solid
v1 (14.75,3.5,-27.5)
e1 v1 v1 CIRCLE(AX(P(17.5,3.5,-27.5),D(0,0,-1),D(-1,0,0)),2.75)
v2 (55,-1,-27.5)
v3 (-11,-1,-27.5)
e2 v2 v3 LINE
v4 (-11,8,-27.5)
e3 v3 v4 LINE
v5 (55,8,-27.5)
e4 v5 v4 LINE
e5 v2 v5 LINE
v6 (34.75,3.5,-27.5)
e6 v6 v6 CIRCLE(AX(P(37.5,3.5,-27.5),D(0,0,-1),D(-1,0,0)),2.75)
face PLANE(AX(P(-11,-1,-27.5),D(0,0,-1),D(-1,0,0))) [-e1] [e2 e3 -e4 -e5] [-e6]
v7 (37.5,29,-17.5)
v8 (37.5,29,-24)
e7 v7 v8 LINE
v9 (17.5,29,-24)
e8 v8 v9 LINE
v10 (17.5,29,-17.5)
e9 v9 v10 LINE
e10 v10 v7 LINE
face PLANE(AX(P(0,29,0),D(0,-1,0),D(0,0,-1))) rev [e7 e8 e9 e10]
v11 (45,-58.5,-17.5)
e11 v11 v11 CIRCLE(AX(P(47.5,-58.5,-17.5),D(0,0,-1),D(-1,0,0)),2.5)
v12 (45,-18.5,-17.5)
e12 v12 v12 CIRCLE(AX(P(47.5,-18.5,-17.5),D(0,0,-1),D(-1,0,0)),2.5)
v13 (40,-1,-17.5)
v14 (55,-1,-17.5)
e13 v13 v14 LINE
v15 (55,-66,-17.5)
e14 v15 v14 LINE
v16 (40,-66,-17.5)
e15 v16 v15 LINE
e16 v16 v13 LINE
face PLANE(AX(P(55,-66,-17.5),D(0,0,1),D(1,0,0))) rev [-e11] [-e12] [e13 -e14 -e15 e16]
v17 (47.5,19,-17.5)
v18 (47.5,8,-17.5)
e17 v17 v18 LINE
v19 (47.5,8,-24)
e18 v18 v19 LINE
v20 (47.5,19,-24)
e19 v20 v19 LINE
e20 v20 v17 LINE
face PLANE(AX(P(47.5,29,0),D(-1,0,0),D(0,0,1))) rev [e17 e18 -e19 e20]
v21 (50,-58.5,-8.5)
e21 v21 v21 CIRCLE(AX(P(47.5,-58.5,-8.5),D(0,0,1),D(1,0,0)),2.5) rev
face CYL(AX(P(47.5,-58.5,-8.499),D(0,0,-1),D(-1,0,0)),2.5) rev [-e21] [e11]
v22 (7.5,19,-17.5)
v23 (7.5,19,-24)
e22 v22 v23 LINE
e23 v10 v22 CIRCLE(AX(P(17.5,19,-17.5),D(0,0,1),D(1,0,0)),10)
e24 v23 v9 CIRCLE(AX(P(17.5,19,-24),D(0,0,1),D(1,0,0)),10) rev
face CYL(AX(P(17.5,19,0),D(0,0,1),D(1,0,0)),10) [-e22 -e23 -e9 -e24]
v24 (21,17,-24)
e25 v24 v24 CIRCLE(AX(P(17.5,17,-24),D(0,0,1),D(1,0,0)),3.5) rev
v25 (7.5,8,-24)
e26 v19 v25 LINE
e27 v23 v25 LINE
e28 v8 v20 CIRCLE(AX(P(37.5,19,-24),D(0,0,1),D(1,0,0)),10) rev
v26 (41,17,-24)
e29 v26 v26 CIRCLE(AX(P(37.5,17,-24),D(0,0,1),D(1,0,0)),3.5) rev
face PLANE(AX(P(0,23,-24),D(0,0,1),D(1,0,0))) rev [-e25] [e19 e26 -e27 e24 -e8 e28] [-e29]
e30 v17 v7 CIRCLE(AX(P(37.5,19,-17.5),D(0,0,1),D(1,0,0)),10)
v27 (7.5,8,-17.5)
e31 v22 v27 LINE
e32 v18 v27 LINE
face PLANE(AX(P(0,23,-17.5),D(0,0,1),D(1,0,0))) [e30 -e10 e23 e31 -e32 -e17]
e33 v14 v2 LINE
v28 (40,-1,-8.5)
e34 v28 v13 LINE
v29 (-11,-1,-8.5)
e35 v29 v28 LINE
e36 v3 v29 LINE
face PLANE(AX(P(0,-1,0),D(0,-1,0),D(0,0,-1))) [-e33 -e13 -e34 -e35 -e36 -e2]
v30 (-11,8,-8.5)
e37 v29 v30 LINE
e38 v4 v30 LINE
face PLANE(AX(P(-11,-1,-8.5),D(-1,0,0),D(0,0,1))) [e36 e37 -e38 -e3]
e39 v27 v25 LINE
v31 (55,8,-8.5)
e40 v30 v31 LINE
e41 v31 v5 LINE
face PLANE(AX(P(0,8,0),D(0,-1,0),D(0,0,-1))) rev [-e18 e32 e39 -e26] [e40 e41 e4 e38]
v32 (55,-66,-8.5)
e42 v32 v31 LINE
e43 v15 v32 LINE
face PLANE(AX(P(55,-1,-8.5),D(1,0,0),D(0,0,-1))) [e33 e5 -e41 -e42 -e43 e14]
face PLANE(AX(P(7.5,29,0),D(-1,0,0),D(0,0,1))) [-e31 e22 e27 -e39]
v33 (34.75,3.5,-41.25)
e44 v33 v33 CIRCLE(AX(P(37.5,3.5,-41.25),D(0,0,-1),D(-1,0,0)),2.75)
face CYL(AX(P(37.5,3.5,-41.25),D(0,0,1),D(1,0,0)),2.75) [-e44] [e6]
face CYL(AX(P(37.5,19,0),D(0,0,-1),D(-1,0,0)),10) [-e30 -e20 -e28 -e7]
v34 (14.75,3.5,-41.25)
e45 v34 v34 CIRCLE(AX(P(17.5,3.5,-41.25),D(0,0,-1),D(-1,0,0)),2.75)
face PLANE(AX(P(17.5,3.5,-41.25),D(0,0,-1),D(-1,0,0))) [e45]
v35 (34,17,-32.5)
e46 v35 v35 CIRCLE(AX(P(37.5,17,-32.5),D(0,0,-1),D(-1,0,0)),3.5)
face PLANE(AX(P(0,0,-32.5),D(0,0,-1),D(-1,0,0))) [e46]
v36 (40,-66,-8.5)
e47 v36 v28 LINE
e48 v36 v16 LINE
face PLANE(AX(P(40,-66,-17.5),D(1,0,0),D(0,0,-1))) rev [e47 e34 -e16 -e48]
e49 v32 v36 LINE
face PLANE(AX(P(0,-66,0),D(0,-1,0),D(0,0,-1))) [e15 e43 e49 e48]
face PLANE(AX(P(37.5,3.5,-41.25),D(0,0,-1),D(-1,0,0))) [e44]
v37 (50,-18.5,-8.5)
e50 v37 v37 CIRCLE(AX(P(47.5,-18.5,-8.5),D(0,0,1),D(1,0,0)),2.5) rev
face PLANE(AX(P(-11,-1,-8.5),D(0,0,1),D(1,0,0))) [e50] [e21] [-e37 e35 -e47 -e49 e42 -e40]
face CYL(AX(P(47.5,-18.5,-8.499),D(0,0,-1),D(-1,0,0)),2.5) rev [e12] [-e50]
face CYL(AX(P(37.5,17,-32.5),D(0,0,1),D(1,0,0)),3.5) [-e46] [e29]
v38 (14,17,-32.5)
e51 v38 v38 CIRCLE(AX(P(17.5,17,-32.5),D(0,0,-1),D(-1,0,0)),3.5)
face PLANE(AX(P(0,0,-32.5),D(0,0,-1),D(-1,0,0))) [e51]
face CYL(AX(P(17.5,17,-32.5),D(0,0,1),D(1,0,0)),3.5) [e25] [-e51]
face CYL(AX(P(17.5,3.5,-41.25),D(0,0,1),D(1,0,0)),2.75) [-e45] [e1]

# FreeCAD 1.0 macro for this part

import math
import FreeCAD as App
import Part
import Sketcher
from FreeCAD import Vector


def edges_at(feature, points):
    """Names of the edges that pass closest to the given points."""
    edges = feature.Shape.Edges
    near = lambda p: min(range(len(edges)), key=lambda i: edges[i].distToShape(Part.Vertex(*p))[0])
    return sorted({f"Edge{near(p) + 1}" for p in points})

doc = App.newDocument("Part")
body = doc.addObject("PartDesign::Body", "Body")

sketch1 = body.newObject("Sketcher::SketchObject", "Sketch")
sketch1.AttachmentSupport = (doc.getObject("XZ_Plane"), [""])
sketch1.MapMode = "FlatFace"
sketch1.addGeometry([
    Part.LineSegment(Vector(-11, -28, 0), Vector(-11, -8, 0)),
    Part.LineSegment(Vector(-11, -8, 0), Vector(55, -8, 0)),
    Part.LineSegment(Vector(55, -8, 0), Vector(55, -28, 0)),
    Part.LineSegment(Vector(55, -28, 0), Vector(-11, -28, 0)),
], False)
sketch1.addConstraint([
    Sketcher.Constraint("Coincident", 0, 2, 1, 1),
    Sketcher.Constraint("Coincident", 1, 2, 2, 1),
    Sketcher.Constraint("Coincident", 2, 2, 3, 1),
    Sketcher.Constraint("Coincident", 3, 2, 0, 1),
    Sketcher.Constraint("Vertical", 0),
    Sketcher.Constraint("Horizontal", 1),
    Sketcher.Constraint("Vertical", 2),
    Sketcher.Constraint("Horizontal", 3),
    Sketcher.Constraint("DistanceX", 1, 1, 1, 2, 66.0),
    Sketcher.Constraint("DistanceY", 0, 1, 0, 2, 19.0),
    Sketcher.Constraint("DistanceX", 0, 2, -1, 1, 11.0),
    Sketcher.Constraint("DistanceY", 0, 2, -1, 1, 8.5),
])
pad1 = body.newObject("PartDesign::Pad", "Pad")
pad1.Profile = sketch1
pad1.Type = "TwoLengths"
pad1.Length = 8
pad1.Length2 = 1
pad1.Reversed = True

sketch2 = body.newObject("Sketcher::SketchObject", "Sketch001")
sketch2.AttachmentSupport = (doc.getObject("XY_Plane"), [""])
sketch2.MapMode = "FlatFace"
sketch2.AttachmentOffset = App.Placement(Vector(0, 0, -27.5), App.Rotation())
sketch2.addGeometry([
    Part.Circle(Vector(37.5, 3.5, 0), Vector(0, 0, 1), 2.8),
    Part.Circle(Vector(17.5, 3.5, 0), Vector(0, 0, 1), 2.8),
], False)
sketch2.addConstraint([
    Sketcher.Constraint("Equal", 0, 1),
    Sketcher.Constraint("Horizontal", 0, 3, 1, 3),
    Sketcher.Constraint("Diameter", 0, 5.5),
    Sketcher.Constraint("DistanceX", 1, 3, 0, 3, 20.0),
    Sketcher.Constraint("DistanceX", -1, 1, 0, 3, 37.5),
    Sketcher.Constraint("DistanceY", -1, 1, 0, 3, 3.5),
])
pad2 = body.newObject("PartDesign::Pad", "Pad001")
pad2.Profile = sketch2
pad2.Length = 13.75
pad2.Reversed = True

sketch3 = body.newObject("Sketcher::SketchObject", "Sketch002")
sketch3.AttachmentSupport = (doc.getObject("XZ_Plane"), [""])
sketch3.MapMode = "FlatFace"
sketch3.AttachmentOffset = App.Placement(Vector(0, 0, -8), App.Rotation())
sketch3.addGeometry([
    Part.LineSegment(Vector(23, -24, 0), Vector(23, -18, 0)),
    Part.LineSegment(Vector(23, -18, 0), Vector(32, -18, 0)),
    Part.LineSegment(Vector(32, -18, 0), Vector(32, -24, 0)),
    Part.LineSegment(Vector(32, -24, 0), Vector(23, -24, 0)),
], False)
sketch3.addConstraint([
    Sketcher.Constraint("Coincident", 0, 2, 1, 1),
    Sketcher.Constraint("Coincident", 1, 2, 2, 1),
    Sketcher.Constraint("Coincident", 2, 2, 3, 1),
    Sketcher.Constraint("Coincident", 3, 2, 0, 1),
    Sketcher.Constraint("Vertical", 0),
    Sketcher.Constraint("Horizontal", 1),
    Sketcher.Constraint("Vertical", 2),
    Sketcher.Constraint("Horizontal", 3),
    Sketcher.Constraint("DistanceX", 1, 1, 1, 2, 9.0),
    Sketcher.Constraint("DistanceY", 0, 1, 0, 2, 6.5),
    Sketcher.Constraint("DistanceX", -1, 1, 0, 2, 23.0),
    Sketcher.Constraint("DistanceY", 2, 2, -1, 1, 24.0),
])
pad3 = body.newObject("PartDesign::Pad", "Pad002")
pad3.Profile = sketch3
pad3.Length = 15
pad3.Reversed = True

sketch4 = body.newObject("Sketcher::SketchObject", "Sketch003")
sketch4.AttachmentSupport = (doc.getObject("XY_Plane"), [""])
sketch4.MapMode = "FlatFace"
sketch4.AttachmentOffset = App.Placement(Vector(0, 0, -24), App.Rotation())
sketch4.addGeometry([
    Part.ArcOfCircle(Part.Circle(Vector(27.5, 16, 0), Vector(0, 0, 1), 3.5), math.radians(-180), math.radians(-122)),
    Part.ArcOfCircle(Part.Circle(Vector(27.5, 16, 0), Vector(0, 0, 1), 3.5), math.radians(-90), math.radians(180)),
    Part.ArcOfCircle(Part.Circle(Vector(27.5, 16, 0), Vector(0, 0, 1), 3.5), math.radians(-117), math.radians(-90)),
    Part.ArcOfCircle(Part.Circle(Vector(25.77, 12.95, 0), Vector(0, 0, 1), 0.16), math.radians(-28), math.radians(149)),
], False)
sketch4.addConstraint([
    Sketcher.Constraint("Tangent", 0, 1, 1, 2),
    Sketcher.Constraint("Tangent", 1, 1, 2, 2),
    Sketcher.Constraint("Coincident", 2, 1, 3, 1),
    Sketcher.Constraint("Coincident", 3, 2, 0, 2),
    Sketcher.Constraint("Coincident", 2, 3, 0, 3),
    Sketcher.Constraint("Horizontal", 2, 3, 0, 1),
    Sketcher.Constraint("Vertical", 2, 3, 1, 1),
    Sketcher.Constraint("Radius", 0, 3.5),
    Sketcher.Constraint("DistanceY", -1, 1, 0, 3, 16.0),
    Sketcher.Constraint("DistanceX", -1, 1, 0, 1, 24.0),
    Sketcher.Constraint("Radius", 3, 0.161043),
    Sketcher.Constraint("DistanceY", -1, 1, 3, 3, 12.954799),
    Sketcher.Constraint("DistanceX", -1, 1, 2, 1, 25.916579),
])
pad4 = body.newObject("PartDesign::Pad", "Pad003")
pad4.Profile = sketch4
pad4.Length = 8.5
pad4.Reversed = True

sketch5 = body.newObject("Sketcher::SketchObject", "Sketch004")
sketch5.AttachmentSupport = (doc.getObject("XZ_Plane"), [""])
sketch5.MapMode = "FlatFace"
sketch5.AttachmentOffset = App.Placement(Vector(0, 0, -23), App.Rotation())
sketch5.addGeometry([
    Part.LineSegment(Vector(23, -24, 0), Vector(23, -18, 0)),
    Part.LineSegment(Vector(23, -18, 0), Vector(32, -18, 0)),
    Part.LineSegment(Vector(32, -18, 0), Vector(32, -24, 0)),
    Part.LineSegment(Vector(32, -24, 0), Vector(23, -24, 0)),
], False)
sketch5.addConstraint([
    Sketcher.Constraint("Coincident", 0, 2, 1, 1),
    Sketcher.Constraint("Coincident", 1, 2, 2, 1),
    Sketcher.Constraint("Coincident", 2, 2, 3, 1),
    Sketcher.Constraint("Coincident", 3, 2, 0, 1),
    Sketcher.Constraint("Vertical", 0),
    Sketcher.Constraint("Horizontal", 1),
    Sketcher.Constraint("Vertical", 2),
    Sketcher.Constraint("Horizontal", 3),
    Sketcher.Constraint("DistanceX", 1, 1, 1, 2, 9.0),
    Sketcher.Constraint("DistanceY", 0, 1, 0, 2, 6.5),
    Sketcher.Constraint("DistanceX", -1, 1, 0, 2, 23.0),
    Sketcher.Constraint("DistanceY", 2, 2, -1, 1, 24.0),
])
pad5 = body.newObject("PartDesign::Pad", "Pad004")
pad5.Profile = sketch5
pad5.Length = 6
pad5.Reversed = True

sketch6 = body.newObject("Sketcher::SketchObject", "Sketch005")
sketch6.AttachmentSupport = (doc.getObject("XZ_Plane"), [""])
sketch6.MapMode = "FlatFace"
sketch6.AttachmentOffset = App.Placement(Vector(0, 0, -8), App.Rotation())
sketch6.addGeometry([
    Part.LineSegment(Vector(8, -24, 0), Vector(8, -18, 0)),
    Part.LineSegment(Vector(8, -18, 0), Vector(23, -18, 0)),
    Part.LineSegment(Vector(23, -18, 0), Vector(23, -24, 0)),
    Part.LineSegment(Vector(23, -24, 0), Vector(8, -24, 0)),
    Part.LineSegment(Vector(32, -24, 0), Vector(32, -18, 0)),
    Part.LineSegment(Vector(32, -18, 0), Vector(48, -18, 0)),
    Part.LineSegment(Vector(48, -18, 0), Vector(48, -24, 0)),
    Part.LineSegment(Vector(48, -24, 0), Vector(32, -24, 0)),
], False)
sketch6.addConstraint([
    Sketcher.Constraint("Coincident", 0, 2, 1, 1),
    Sketcher.Constraint("Coincident", 1, 2, 2, 1),
    Sketcher.Constraint("Coincident", 2, 2, 3, 1),
    Sketcher.Constraint("Coincident", 3, 2, 0, 1),
    Sketcher.Constraint("Coincident", 4, 2, 5, 1),
    Sketcher.Constraint("Coincident", 5, 2, 6, 1),
    Sketcher.Constraint("Coincident", 6, 2, 7, 1),
    Sketcher.Constraint("Coincident", 7, 2, 4, 1),
    Sketcher.Constraint("Vertical", 0),
    Sketcher.Constraint("Horizontal", 1),
    Sketcher.Constraint("Vertical", 2),
    Sketcher.Constraint("Horizontal", 3),
    Sketcher.Constraint("Vertical", 4),
    Sketcher.Constraint("Horizontal", 5),
    Sketcher.Constraint("Vertical", 6),
    Sketcher.Constraint("Horizontal", 7),
    Sketcher.Constraint("Horizontal", 1, 2, 4, 2),
    Sketcher.Constraint("Horizontal", 3, 2, 6, 2),
    Sketcher.Constraint("Equal", 3, 5),
    Sketcher.Constraint("DistanceX", 1, 1, 1, 2, 15.5),
    Sketcher.Constraint("DistanceY", 0, 1, 0, 2, 6.5),
    Sketcher.Constraint("DistanceX", -1, 1, 1, 2, 23.0),
    Sketcher.Constraint("DistanceY", 2, 2, -1, 1, 24.0),
    Sketcher.Constraint("DistanceX", -1, 1, 4, 2, 32.0),
])
pad6 = body.newObject("PartDesign::Pad", "Pad005")
pad6.Profile = sketch6
pad6.Length = 21
pad6.Reversed = True

sketch7 = body.newObject("Sketcher::SketchObject", "Sketch006")
sketch7.AttachmentSupport = (doc.getObject("XY_Plane"), [""])
sketch7.MapMode = "FlatFace"
sketch7.AttachmentOffset = App.Placement(Vector(0, 0, -24), App.Rotation())
sketch7.addGeometry([
    Part.ArcOfCircle(Part.Circle(Vector(17.5, 17, 0), Vector(0, 0, 1), 3.5), math.radians(0), math.radians(180)),
    Part.ArcOfCircle(Part.Circle(Vector(17.5, 17, 0), Vector(0, 0, 1), 3.5), math.radians(-90), math.radians(0)),
    Part.ArcOfCircle(Part.Circle(Vector(17.5, 17, 0), Vector(0, 0, 1), 3.5), math.radians(-180), math.radians(-90)),
    Part.ArcOfCircle(Part.Circle(Vector(37.5, 17, 0), Vector(0, 0, 1), 3.5), math.radians(-90), math.radians(0)),
    Part.ArcOfCircle(Part.Circle(Vector(37.5, 17, 0), Vector(0, 0, 1), 3.5), math.radians(-180), math.radians(-90)),
    Part.ArcOfCircle(Part.Circle(Vector(37.5, 17, 0), Vector(0, 0, 1), 3.5), math.radians(0), math.radians(180)),
], False)
sketch7.addConstraint([
    Sketcher.Constraint("Tangent", 0, 1, 1, 2),
    Sketcher.Constraint("Tangent", 1, 1, 2, 2),
    Sketcher.Constraint("Tangent", 2, 1, 0, 2),
    Sketcher.Constraint("Tangent", 3, 1, 4, 2),
    Sketcher.Constraint("Tangent", 4, 1, 5, 2),
    Sketcher.Constraint("Tangent", 5, 1, 3, 2),
    Sketcher.Constraint("Equal", 2, 3),
    Sketcher.Constraint("Horizontal", 2, 3, 3, 3),
    Sketcher.Constraint("Horizontal", 5, 3, 0, 1),
    Sketcher.Constraint("Horizontal", 0, 1, 2, 1),
    Sketcher.Constraint("Horizontal", 2, 1, 4, 1),
    Sketcher.Constraint("Horizontal", 4, 1, 5, 1),
    Sketcher.Constraint("Vertical", 2, 3, 1, 1),
    Sketcher.Constraint("Vertical", 5, 3, 3, 1),
    Sketcher.Constraint("Radius", 0, 3.5),
    Sketcher.Constraint("DistanceY", -1, 1, 0, 3, 17.0),
    Sketcher.Constraint("DistanceX", -1, 1, 0, 1, 21.0),
    Sketcher.Constraint("DistanceX", -1, 1, 4, 1, 34.0),
])
pad7 = body.newObject("PartDesign::Pad", "Pad006")
pad7.Profile = sketch7
pad7.Length = 8.5
pad7.Reversed = True

sketch8 = body.newObject("Sketcher::SketchObject", "Sketch007")
sketch8.AttachmentSupport = (doc.getObject("XY_Plane"), [""])
sketch8.MapMode = "FlatFace"
sketch8.AttachmentOffset = App.Placement(Vector(0, 0, -24), App.Rotation())
sketch8.addGeometry(Part.Circle(Vector(27.5, 16, 0), Vector(0, 0, 1), 3.5), False)
sketch8.addConstraint([
    Sketcher.Constraint("Diameter", 0, 7.0),
    Sketcher.Constraint("DistanceY", -1, 1, 0, 3, 16.0),
    Sketcher.Constraint("DistanceX", -1, 1, 0, 3, 27.5),
])
pocket1 = body.newObject("PartDesign::Pocket", "Pocket")
pocket1.Profile = sketch8
pocket1.Length = 8.5
doc.recompute()

fillet = body.newObject("PartDesign::Fillet", "Fillet")
fillet.Base = (pocket1, edges_at(pocket1, [(7.5, 29, -20.75), (47.5, 29, -20.75)]))
fillet.Radius = 10

sketch9 = body.newObject("Sketcher::SketchObject", "Sketch008")
sketch9.AttachmentSupport = (doc.getObject("XZ_Plane"), [""])
sketch9.MapMode = "FlatFace"
sketch9.AttachmentOffset = App.Placement(Vector(0, 0, 1), App.Rotation())
sketch9.addGeometry([
    Part.LineSegment(Vector(40, -8, 0), Vector(40, -18, 0)),
    Part.LineSegment(Vector(40, -18, 0), Vector(55, -18, 0)),
    Part.LineSegment(Vector(55, -18, 0), Vector(55, -8, 0)),
    Part.LineSegment(Vector(55, -8, 0), Vector(40, -8, 0)),
], False)
sketch9.addConstraint([
    Sketcher.Constraint("Coincident", 0, 2, 1, 1),
    Sketcher.Constraint("Coincident", 1, 2, 2, 1),
    Sketcher.Constraint("Coincident", 2, 2, 3, 1),
    Sketcher.Constraint("Coincident", 3, 2, 0, 1),
    Sketcher.Constraint("Vertical", 0),
    Sketcher.Constraint("Horizontal", 1),
    Sketcher.Constraint("Vertical", 2),
    Sketcher.Constraint("Horizontal", 3),
    Sketcher.Constraint("DistanceX", 1, 1, 1, 2, 15.0),
    Sketcher.Constraint("DistanceY", 0, 2, 0, 1, 9.0),
    Sketcher.Constraint("DistanceX", -1, 1, 0, 2, 40.0),
    Sketcher.Constraint("DistanceY", 0, 2, -1, 1, 17.5),
])
pad8 = body.newObject("PartDesign::Pad", "Pad007")
pad8.Profile = sketch9
pad8.Length = 65

sketch10 = body.newObject("Sketcher::SketchObject", "Sketch009")
sketch10.AttachmentSupport = (doc.getObject("XY_Plane"), [""])
sketch10.MapMode = "FlatFace"
sketch10.AttachmentOffset = App.Placement(Vector(0, 0, -17.5), App.Rotation())
sketch10.addGeometry(Part.Circle(Vector(47.5, -58.5, 0), Vector(0, 0, 1), 2.5), False)
sketch10.addConstraint([
    Sketcher.Constraint("Diameter", 0, 5.0),
    Sketcher.Constraint("DistanceX", -1, 1, 0, 3, 47.5),
    Sketcher.Constraint("DistanceY", 0, 3, -1, 1, 58.5),
])
pocket2 = body.newObject("PartDesign::Pocket", "Pocket001")
pocket2.Profile = sketch10
pocket2.Type = "UpToFirst"
pocket2.Reversed = True

sketch11 = body.newObject("Sketcher::SketchObject", "Sketch010")
sketch11.AttachmentSupport = (doc.getObject("XY_Plane"), [""])
sketch11.MapMode = "FlatFace"
sketch11.AttachmentOffset = App.Placement(Vector(0, 0, -17.5), App.Rotation())
sketch11.addGeometry(Part.Circle(Vector(47.5, -18.5, 0), Vector(0, 0, 1), 2.5), False)
sketch11.addConstraint([
    Sketcher.Constraint("Diameter", 0, 5.0),
    Sketcher.Constraint("DistanceX", -1, 1, 0, 3, 47.5),
    Sketcher.Constraint("DistanceY", 0, 3, -1, 1, 18.5),
])
pocket3 = body.newObject("PartDesign::Pocket", "Pocket002")
pocket3.Profile = sketch11
pocket3.Type = "UpToFirst"
pocket3.Reversed = True

doc.recompute()
